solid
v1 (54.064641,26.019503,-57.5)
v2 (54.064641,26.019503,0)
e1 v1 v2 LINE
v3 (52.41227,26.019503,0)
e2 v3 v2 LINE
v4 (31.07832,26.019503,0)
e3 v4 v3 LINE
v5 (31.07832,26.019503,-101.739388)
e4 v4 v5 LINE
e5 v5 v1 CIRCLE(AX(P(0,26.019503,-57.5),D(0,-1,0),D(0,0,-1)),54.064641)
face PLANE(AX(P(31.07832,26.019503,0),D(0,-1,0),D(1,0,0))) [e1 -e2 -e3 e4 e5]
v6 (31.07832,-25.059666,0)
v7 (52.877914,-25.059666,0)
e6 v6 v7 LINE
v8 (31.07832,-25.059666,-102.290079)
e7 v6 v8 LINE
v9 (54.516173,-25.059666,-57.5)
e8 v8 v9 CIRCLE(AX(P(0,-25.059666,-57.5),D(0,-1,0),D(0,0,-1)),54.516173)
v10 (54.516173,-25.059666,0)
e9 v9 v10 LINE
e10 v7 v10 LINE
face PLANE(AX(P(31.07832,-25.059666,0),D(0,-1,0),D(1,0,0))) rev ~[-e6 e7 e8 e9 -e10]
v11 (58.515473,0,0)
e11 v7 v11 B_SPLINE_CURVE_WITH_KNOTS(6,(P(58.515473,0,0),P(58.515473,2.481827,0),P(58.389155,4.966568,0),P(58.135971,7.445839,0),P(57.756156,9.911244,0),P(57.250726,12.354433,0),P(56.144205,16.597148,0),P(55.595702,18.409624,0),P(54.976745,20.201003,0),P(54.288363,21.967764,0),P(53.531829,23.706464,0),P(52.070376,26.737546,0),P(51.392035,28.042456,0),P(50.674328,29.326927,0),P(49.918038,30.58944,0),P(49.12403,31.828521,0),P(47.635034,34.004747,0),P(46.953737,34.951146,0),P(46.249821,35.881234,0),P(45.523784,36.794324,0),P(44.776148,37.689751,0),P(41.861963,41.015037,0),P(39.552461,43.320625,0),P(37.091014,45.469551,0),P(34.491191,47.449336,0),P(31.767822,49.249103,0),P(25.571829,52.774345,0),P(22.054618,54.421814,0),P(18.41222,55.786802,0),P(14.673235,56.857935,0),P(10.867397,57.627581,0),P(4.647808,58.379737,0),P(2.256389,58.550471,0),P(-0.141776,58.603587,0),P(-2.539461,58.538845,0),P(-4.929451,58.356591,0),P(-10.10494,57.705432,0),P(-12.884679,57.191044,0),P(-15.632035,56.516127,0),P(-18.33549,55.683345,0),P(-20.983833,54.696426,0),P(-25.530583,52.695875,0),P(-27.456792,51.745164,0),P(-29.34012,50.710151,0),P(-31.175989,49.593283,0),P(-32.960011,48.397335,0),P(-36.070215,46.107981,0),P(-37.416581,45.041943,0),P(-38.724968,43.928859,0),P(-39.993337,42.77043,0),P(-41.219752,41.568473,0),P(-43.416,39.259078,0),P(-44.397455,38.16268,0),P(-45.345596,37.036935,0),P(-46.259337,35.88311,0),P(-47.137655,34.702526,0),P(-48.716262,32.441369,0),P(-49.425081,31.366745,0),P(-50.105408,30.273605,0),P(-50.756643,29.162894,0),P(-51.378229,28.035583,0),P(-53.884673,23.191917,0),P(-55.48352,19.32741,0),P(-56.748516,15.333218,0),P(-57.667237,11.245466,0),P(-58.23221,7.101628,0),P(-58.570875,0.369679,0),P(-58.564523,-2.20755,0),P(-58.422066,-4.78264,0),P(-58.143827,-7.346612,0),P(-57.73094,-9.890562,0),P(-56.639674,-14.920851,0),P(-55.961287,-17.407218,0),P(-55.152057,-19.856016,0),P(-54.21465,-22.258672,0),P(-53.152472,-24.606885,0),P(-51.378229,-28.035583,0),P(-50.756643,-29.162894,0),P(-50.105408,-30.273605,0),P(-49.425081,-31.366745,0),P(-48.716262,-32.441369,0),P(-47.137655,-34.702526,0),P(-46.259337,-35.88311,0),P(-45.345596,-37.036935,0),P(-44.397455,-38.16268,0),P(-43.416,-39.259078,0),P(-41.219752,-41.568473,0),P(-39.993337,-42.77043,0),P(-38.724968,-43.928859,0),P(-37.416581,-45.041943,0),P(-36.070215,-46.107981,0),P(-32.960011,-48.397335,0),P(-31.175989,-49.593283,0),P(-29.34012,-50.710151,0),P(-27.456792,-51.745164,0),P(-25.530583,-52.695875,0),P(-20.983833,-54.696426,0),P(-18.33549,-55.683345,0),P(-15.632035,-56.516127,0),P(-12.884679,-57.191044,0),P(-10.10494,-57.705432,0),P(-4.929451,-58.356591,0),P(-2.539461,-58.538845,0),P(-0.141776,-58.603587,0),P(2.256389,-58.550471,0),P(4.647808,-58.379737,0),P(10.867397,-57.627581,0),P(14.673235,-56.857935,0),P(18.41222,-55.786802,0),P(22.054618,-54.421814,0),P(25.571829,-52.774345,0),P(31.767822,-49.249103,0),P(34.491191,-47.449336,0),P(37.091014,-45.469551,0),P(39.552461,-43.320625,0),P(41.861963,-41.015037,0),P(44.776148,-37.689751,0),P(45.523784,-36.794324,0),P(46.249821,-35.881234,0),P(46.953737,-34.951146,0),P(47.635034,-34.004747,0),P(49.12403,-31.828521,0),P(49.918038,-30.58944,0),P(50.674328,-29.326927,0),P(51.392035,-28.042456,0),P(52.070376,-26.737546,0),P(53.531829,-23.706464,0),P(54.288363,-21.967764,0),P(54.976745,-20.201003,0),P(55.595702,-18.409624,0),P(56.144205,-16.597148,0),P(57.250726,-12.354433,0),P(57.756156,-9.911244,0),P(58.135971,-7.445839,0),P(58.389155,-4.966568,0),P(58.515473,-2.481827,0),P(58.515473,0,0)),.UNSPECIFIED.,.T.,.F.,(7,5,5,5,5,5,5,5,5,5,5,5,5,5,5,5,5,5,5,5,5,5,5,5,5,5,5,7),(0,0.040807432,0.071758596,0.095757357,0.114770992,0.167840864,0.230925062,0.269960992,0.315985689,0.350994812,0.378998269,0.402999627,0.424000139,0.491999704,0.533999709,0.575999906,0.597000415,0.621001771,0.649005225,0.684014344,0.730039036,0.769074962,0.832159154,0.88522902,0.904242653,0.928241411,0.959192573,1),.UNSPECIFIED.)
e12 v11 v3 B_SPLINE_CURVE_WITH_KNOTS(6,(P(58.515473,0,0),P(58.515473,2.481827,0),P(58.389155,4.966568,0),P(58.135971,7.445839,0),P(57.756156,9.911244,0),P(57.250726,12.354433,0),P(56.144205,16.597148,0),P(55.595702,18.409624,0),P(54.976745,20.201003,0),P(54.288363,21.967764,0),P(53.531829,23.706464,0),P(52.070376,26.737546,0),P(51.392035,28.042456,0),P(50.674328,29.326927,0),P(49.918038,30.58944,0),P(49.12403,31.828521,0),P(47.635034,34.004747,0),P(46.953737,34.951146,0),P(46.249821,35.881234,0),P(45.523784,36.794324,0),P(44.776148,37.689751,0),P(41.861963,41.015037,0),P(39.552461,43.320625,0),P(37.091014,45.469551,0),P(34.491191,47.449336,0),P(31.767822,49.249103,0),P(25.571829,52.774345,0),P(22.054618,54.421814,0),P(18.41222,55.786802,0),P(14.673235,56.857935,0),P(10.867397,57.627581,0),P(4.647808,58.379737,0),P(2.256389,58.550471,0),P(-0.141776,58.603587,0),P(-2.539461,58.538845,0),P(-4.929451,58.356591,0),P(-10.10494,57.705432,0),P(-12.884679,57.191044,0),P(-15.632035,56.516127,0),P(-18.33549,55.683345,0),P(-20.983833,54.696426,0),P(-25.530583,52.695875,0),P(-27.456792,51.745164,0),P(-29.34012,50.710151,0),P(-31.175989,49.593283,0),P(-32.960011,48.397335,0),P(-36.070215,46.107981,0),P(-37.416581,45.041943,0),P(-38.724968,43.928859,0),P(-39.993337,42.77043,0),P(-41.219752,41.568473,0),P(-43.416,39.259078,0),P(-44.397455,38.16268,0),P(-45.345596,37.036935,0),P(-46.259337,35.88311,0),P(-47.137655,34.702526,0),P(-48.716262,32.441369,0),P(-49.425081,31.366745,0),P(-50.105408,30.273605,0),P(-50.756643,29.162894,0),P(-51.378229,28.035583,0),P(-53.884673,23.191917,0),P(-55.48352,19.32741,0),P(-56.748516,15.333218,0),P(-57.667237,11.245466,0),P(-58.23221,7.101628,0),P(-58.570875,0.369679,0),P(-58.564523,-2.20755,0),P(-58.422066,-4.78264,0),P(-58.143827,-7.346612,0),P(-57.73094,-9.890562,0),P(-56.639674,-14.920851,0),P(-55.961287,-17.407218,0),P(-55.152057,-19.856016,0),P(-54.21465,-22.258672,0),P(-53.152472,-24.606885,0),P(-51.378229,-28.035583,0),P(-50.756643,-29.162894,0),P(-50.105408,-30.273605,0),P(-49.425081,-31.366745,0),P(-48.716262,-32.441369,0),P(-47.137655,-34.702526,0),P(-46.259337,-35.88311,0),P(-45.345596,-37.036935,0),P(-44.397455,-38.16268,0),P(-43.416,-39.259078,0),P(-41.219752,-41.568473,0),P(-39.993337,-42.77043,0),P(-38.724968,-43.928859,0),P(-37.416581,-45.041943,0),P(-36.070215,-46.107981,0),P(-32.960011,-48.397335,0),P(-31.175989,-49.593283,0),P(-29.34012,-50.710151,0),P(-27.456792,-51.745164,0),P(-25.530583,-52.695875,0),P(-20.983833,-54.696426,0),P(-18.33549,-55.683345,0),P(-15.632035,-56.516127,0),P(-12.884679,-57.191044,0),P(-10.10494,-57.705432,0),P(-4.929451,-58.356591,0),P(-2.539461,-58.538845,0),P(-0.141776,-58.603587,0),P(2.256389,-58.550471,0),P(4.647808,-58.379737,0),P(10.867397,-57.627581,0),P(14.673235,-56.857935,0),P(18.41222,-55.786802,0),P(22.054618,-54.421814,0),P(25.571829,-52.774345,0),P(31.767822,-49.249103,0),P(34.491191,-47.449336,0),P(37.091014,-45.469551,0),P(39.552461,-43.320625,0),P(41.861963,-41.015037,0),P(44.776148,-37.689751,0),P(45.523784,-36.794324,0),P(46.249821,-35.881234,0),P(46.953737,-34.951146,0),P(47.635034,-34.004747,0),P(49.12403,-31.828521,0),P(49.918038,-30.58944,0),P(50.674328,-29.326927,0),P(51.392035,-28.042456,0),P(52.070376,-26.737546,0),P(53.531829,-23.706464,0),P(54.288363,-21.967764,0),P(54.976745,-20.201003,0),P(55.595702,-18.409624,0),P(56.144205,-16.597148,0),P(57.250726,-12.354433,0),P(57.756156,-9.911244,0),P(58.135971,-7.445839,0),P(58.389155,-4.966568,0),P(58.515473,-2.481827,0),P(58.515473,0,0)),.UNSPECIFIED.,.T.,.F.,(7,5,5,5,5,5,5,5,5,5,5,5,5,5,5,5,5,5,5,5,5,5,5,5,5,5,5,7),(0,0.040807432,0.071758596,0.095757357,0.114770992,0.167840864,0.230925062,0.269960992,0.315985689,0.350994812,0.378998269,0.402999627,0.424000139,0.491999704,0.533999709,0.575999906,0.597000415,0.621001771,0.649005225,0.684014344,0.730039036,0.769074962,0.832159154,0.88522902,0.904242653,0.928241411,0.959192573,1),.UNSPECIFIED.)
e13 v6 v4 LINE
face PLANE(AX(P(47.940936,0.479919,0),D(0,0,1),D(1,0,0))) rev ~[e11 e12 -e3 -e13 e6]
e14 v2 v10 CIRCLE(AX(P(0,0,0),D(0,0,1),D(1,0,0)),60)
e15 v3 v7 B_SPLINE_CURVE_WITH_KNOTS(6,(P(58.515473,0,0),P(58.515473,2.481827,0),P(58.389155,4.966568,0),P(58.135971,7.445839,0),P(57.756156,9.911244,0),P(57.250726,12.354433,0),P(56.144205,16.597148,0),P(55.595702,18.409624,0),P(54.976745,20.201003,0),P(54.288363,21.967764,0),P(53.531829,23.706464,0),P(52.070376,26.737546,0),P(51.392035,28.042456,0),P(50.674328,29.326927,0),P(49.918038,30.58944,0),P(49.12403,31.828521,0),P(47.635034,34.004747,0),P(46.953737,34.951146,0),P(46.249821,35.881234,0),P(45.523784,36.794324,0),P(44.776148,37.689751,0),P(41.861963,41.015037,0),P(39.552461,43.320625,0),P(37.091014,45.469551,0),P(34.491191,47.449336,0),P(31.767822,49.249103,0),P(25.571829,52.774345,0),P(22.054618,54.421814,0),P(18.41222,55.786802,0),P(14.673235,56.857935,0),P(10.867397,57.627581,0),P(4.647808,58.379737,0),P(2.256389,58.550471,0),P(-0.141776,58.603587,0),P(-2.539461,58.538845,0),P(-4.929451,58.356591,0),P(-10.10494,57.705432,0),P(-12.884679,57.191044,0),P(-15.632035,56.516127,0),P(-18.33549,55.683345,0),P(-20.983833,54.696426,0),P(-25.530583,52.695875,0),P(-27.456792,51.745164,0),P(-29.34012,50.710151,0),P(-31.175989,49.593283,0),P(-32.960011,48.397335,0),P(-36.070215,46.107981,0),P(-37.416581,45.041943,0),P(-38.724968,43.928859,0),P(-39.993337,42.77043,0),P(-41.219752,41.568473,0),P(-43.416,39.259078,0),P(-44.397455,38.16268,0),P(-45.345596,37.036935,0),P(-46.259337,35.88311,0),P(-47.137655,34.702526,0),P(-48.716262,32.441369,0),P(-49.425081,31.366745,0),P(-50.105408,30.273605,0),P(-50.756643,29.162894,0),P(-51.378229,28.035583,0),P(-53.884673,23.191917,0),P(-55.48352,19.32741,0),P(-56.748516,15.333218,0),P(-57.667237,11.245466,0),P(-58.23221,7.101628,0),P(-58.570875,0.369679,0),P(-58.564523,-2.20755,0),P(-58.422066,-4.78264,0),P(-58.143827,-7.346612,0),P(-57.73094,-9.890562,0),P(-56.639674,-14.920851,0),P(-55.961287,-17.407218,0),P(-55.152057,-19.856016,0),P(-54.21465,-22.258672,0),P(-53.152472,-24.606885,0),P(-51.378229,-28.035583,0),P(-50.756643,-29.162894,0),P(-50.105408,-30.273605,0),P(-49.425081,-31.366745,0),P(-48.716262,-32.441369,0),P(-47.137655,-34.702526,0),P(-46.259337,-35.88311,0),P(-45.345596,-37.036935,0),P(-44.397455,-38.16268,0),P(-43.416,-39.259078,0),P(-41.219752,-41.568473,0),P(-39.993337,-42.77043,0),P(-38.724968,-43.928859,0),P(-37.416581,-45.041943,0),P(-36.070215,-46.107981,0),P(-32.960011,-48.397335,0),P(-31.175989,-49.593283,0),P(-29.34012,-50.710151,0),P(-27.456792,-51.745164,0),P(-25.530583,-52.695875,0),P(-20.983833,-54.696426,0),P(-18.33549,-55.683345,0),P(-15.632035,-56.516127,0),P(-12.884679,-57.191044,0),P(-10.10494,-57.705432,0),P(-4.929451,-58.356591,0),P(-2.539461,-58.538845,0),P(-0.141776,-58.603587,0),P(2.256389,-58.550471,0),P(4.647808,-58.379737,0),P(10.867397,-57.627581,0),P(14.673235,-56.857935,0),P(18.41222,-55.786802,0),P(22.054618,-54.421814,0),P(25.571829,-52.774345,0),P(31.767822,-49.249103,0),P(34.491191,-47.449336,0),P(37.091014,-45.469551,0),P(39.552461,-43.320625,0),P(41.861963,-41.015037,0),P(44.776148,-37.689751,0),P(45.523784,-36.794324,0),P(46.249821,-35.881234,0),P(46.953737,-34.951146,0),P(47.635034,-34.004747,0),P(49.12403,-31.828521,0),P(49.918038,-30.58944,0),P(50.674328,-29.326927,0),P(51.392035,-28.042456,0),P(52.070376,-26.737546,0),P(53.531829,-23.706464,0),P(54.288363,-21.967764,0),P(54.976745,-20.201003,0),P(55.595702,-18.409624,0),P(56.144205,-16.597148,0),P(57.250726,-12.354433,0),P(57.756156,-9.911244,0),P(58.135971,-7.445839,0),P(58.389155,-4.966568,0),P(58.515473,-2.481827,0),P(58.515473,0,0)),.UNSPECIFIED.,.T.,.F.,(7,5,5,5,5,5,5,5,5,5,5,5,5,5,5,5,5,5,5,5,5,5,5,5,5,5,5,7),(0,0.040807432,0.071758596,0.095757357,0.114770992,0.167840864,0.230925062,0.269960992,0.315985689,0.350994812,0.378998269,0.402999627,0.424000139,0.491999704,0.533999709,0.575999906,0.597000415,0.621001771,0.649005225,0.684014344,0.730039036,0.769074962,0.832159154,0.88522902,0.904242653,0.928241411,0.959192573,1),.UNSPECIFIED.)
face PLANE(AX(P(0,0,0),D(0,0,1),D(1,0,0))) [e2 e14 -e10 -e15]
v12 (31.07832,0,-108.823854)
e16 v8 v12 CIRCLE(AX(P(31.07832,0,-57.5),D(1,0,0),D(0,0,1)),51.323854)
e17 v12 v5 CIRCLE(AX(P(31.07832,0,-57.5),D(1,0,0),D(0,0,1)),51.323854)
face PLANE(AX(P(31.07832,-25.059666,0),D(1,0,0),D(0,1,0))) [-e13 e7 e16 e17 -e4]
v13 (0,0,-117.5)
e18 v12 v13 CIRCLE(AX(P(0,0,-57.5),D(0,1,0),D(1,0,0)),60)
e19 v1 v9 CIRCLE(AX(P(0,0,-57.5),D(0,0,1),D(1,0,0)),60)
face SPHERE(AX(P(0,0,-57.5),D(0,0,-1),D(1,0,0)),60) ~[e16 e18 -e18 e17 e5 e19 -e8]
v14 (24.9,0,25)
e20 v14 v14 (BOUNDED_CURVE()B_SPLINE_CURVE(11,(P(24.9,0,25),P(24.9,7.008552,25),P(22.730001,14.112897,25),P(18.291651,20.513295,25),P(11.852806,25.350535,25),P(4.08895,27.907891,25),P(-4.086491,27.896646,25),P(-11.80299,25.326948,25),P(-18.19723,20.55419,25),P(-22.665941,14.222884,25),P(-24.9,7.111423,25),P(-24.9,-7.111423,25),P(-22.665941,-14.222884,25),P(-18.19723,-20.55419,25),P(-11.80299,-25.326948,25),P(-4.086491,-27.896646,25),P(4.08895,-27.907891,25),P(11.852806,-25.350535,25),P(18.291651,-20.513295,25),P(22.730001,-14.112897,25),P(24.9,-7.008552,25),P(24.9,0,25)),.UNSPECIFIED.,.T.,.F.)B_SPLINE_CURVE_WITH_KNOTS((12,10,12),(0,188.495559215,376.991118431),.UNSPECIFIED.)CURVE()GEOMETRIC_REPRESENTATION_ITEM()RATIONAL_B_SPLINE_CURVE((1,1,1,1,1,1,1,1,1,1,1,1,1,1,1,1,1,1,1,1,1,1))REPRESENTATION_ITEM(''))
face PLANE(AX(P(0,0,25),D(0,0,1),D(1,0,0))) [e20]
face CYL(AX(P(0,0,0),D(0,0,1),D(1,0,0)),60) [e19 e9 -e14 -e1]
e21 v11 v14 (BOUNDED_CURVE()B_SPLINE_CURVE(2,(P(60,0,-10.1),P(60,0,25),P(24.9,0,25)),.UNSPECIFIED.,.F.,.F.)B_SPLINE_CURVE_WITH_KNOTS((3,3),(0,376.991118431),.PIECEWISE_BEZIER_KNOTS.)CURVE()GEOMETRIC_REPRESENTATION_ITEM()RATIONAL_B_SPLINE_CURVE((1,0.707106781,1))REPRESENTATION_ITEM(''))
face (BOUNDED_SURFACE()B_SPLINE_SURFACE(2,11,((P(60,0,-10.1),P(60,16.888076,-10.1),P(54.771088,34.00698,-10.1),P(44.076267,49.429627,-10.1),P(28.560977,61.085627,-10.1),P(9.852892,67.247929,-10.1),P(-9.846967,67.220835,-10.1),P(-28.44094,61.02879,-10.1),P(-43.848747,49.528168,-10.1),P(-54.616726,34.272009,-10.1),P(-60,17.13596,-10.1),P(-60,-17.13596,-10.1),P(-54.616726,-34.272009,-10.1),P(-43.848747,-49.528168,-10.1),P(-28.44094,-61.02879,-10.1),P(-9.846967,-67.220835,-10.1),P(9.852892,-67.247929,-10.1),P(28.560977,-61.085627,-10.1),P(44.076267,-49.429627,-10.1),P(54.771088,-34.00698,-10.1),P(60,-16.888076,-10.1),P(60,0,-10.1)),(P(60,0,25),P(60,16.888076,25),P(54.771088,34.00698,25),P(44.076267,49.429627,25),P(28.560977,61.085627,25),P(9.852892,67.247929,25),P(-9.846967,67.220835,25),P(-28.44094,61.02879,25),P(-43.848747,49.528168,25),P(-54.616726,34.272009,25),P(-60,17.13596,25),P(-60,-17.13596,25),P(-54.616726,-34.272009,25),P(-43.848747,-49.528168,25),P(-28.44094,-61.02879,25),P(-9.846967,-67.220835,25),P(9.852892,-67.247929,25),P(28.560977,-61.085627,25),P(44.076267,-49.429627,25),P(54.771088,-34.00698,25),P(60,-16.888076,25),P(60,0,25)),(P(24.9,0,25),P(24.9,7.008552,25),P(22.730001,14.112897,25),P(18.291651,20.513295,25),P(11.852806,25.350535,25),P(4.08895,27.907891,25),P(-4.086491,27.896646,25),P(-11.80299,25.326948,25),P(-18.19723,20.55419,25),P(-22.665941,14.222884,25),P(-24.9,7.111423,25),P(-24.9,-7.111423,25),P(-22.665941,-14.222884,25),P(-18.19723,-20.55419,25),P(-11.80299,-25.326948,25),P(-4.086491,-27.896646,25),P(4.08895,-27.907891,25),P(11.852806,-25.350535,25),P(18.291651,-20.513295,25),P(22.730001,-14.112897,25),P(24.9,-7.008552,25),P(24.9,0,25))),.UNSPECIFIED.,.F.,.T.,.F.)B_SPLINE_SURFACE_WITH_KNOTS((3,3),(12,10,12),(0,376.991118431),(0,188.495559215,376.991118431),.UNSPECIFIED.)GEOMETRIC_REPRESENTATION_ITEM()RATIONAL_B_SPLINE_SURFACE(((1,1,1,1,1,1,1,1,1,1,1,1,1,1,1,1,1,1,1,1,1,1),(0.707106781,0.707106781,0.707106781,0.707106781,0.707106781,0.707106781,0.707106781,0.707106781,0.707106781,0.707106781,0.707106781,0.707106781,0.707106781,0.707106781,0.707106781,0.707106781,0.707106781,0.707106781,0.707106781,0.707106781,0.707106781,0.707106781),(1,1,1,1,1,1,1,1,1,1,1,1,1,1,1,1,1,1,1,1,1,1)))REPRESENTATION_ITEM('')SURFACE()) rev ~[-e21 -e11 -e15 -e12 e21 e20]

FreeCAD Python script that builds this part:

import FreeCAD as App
import Part
import Sketcher
Q = App.Units.Quantity


def edges_at(feature, points):
    """Names of the edges that pass closest to the given points."""
    edges = feature.Shape.Edges
    near = lambda p: min(range(len(edges)), key=lambda i: edges[i].distToShape(Part.Vertex(*p))[0])
    return sorted({f"Edge{near(p) + 1}" for p in points})


def add_polygon(sketch, points):
    """Adds a closed chain of lines whose ends are joined by coincident constraints."""
    first, n = sketch.GeometryCount, len(points)
    for a, b in zip(points, points[1:] + points[:1]):
        sketch.addGeometry(Part.LineSegment(App.Vector(*a, 0), App.Vector(*b, 0)), False)
    for i in range(n):
        sketch.addConstraint(Sketcher.Constraint("Coincident", first + i, 2, first + (i + 1) % n, 1))

doc = App.newDocument("Part")
params = doc.addObject("Spreadsheet::Sheet", "Params")
for row, (alias, value) in enumerate([
    ("sketch1_diameter", "120 mm"),
    ("sketch1_diameter2", "117 mm"),
    ("pad1_length", "70 mm"),
    ("sketch2_diameter", "120 mm"),
    ("pad2_length", "25 mm"),
    ("fillet_radius", "35.1 mm"),
    ("sketch3_diameter", "120 mm"),
    ("pad3_length", "117.5 mm"),
    ("fillet2_radius", "60 mm"),
    ("pocket1_length", "133 mm"),
], start=1):
    params.set(f"A{row}", alias)
    params.set(f"B{row}", "=" + value)
    params.setAlias(f"B{row}", alias)

body = doc.addObject("PartDesign::Body", "Body")

# Sketch on XY plane
sketch1 = body.newObject("Sketcher::SketchObject", "Sketch")
sketch1.AttachmentSupport = (doc.getObject("XY_Plane"), [""])
sketch1.MapMode = "FlatFace"
sketch1.addGeometry([
    Part.Circle(App.Vector(0, 0, 0), App.Vector(0, 0, 1), 60),
    Part.Circle(App.Vector(0, 0, 0), App.Vector(0, 0, 1), 58),
], False)
sketch1.addConstraint([
    Sketcher.Constraint("Coincident", 0, 3, -1, 1),
    Sketcher.Constraint("Coincident", 1, 3, -1, 1),
    Sketcher.Constraint("Diameter", 0, Q("120 mm")),
    Sketcher.Constraint("Diameter", 1, Q("117 mm")),
])
sketch1.setExpression("Constraints[2]", "Params.sketch1_diameter")
sketch1.setExpression("Constraints[3]", "Params.sketch1_diameter2")
pad1 = body.newObject("PartDesign::Pad", "Pad")
pad1.Profile = sketch1
pad1.setExpression("Length", "Params.pad1_length")
pad1.Reversed = True

# Sketch on XY plane
sketch2 = body.newObject("Sketcher::SketchObject", "Sketch001")
sketch2.AttachmentSupport = (doc.getObject("XY_Plane"), [""])
sketch2.MapMode = "FlatFace"
sketch2.addGeometry(Part.Circle(App.Vector(0, 0, 0), App.Vector(0, 0, 1), 60), False)
sketch2.addConstraint([
    Sketcher.Constraint("Coincident", 0, 3, -1, 1),
    Sketcher.Constraint("Diameter", 0, Q("120 mm")),
])
sketch2.setExpression("Constraints[1]", "Params.sketch2_diameter")
pad2 = body.newObject("PartDesign::Pad", "Pad001")
pad2.Profile = sketch2
pad2.setExpression("Length", "Params.pad2_length")
doc.recompute()

fillet = body.newObject("PartDesign::Fillet", "Fillet")
fillet.Base = (pad2, edges_at(pad2, [(-60, 0, 25)]))
fillet.setExpression("Radius", "Params.fillet_radius")

# Sketch on XY plane
sketch3 = body.newObject("Sketcher::SketchObject", "Sketch002")
sketch3.AttachmentSupport = (doc.getObject("XY_Plane"), [""])
sketch3.MapMode = "FlatFace"
sketch3.addGeometry(Part.Circle(App.Vector(0, 0, 0), App.Vector(0, 0, 1), 60), False)
sketch3.addConstraint([
    Sketcher.Constraint("Coincident", 0, 3, -1, 1),
    Sketcher.Constraint("Diameter", 0, Q("120 mm")),
])
sketch3.setExpression("Constraints[1]", "Params.sketch3_diameter")
pad3 = body.newObject("PartDesign::Pad", "Pad002")
pad3.Profile = sketch3
pad3.setExpression("Length", "Params.pad3_length")
pad3.Reversed = True
doc.recompute()

fillet2 = body.newObject("PartDesign::Fillet", "Fillet001")
fillet2.Base = (pad3, edges_at(pad3, [(-60, 0, -117.5), (-24.9, 0, 25)]))
fillet2.setExpression("Radius", "Params.fillet2_radius")

# Sketch on XY plane
sketch4 = body.newObject("Sketcher::SketchObject", "Sketch003")
sketch4.AttachmentSupport = (doc.getObject("XY_Plane"), [""])
sketch4.MapMode = "FlatFace"
add_polygon(sketch4, [(31, 26), (31, -25), (65, -25), (65, 26)])  # lines 0-3
sketch4.addConstraint([
    Sketcher.Constraint("Vertical", 0),
    Sketcher.Constraint("Horizontal", 1),
    Sketcher.Constraint("Vertical", 2),
    Sketcher.Constraint("Horizontal", 3),
    Sketcher.Constraint("DistanceX", 1, 1, 1, 2, Q("33.725232 mm")),
    Sketcher.Constraint("DistanceY", 0, 2, 0, 1, Q("51.079169 mm")),
    Sketcher.Constraint("DistanceX", -1, 1, 0, 2, Q("31.07832 mm")),
    Sketcher.Constraint("DistanceY", 0, 2, -1, 1, Q("25.059666 mm")),
])
pocket1 = body.newObject("PartDesign::Pocket", "Pocket")
pocket1.Profile = sketch4
pocket1.setExpression("Length", "Params.pocket1_length")

doc.recompute()
